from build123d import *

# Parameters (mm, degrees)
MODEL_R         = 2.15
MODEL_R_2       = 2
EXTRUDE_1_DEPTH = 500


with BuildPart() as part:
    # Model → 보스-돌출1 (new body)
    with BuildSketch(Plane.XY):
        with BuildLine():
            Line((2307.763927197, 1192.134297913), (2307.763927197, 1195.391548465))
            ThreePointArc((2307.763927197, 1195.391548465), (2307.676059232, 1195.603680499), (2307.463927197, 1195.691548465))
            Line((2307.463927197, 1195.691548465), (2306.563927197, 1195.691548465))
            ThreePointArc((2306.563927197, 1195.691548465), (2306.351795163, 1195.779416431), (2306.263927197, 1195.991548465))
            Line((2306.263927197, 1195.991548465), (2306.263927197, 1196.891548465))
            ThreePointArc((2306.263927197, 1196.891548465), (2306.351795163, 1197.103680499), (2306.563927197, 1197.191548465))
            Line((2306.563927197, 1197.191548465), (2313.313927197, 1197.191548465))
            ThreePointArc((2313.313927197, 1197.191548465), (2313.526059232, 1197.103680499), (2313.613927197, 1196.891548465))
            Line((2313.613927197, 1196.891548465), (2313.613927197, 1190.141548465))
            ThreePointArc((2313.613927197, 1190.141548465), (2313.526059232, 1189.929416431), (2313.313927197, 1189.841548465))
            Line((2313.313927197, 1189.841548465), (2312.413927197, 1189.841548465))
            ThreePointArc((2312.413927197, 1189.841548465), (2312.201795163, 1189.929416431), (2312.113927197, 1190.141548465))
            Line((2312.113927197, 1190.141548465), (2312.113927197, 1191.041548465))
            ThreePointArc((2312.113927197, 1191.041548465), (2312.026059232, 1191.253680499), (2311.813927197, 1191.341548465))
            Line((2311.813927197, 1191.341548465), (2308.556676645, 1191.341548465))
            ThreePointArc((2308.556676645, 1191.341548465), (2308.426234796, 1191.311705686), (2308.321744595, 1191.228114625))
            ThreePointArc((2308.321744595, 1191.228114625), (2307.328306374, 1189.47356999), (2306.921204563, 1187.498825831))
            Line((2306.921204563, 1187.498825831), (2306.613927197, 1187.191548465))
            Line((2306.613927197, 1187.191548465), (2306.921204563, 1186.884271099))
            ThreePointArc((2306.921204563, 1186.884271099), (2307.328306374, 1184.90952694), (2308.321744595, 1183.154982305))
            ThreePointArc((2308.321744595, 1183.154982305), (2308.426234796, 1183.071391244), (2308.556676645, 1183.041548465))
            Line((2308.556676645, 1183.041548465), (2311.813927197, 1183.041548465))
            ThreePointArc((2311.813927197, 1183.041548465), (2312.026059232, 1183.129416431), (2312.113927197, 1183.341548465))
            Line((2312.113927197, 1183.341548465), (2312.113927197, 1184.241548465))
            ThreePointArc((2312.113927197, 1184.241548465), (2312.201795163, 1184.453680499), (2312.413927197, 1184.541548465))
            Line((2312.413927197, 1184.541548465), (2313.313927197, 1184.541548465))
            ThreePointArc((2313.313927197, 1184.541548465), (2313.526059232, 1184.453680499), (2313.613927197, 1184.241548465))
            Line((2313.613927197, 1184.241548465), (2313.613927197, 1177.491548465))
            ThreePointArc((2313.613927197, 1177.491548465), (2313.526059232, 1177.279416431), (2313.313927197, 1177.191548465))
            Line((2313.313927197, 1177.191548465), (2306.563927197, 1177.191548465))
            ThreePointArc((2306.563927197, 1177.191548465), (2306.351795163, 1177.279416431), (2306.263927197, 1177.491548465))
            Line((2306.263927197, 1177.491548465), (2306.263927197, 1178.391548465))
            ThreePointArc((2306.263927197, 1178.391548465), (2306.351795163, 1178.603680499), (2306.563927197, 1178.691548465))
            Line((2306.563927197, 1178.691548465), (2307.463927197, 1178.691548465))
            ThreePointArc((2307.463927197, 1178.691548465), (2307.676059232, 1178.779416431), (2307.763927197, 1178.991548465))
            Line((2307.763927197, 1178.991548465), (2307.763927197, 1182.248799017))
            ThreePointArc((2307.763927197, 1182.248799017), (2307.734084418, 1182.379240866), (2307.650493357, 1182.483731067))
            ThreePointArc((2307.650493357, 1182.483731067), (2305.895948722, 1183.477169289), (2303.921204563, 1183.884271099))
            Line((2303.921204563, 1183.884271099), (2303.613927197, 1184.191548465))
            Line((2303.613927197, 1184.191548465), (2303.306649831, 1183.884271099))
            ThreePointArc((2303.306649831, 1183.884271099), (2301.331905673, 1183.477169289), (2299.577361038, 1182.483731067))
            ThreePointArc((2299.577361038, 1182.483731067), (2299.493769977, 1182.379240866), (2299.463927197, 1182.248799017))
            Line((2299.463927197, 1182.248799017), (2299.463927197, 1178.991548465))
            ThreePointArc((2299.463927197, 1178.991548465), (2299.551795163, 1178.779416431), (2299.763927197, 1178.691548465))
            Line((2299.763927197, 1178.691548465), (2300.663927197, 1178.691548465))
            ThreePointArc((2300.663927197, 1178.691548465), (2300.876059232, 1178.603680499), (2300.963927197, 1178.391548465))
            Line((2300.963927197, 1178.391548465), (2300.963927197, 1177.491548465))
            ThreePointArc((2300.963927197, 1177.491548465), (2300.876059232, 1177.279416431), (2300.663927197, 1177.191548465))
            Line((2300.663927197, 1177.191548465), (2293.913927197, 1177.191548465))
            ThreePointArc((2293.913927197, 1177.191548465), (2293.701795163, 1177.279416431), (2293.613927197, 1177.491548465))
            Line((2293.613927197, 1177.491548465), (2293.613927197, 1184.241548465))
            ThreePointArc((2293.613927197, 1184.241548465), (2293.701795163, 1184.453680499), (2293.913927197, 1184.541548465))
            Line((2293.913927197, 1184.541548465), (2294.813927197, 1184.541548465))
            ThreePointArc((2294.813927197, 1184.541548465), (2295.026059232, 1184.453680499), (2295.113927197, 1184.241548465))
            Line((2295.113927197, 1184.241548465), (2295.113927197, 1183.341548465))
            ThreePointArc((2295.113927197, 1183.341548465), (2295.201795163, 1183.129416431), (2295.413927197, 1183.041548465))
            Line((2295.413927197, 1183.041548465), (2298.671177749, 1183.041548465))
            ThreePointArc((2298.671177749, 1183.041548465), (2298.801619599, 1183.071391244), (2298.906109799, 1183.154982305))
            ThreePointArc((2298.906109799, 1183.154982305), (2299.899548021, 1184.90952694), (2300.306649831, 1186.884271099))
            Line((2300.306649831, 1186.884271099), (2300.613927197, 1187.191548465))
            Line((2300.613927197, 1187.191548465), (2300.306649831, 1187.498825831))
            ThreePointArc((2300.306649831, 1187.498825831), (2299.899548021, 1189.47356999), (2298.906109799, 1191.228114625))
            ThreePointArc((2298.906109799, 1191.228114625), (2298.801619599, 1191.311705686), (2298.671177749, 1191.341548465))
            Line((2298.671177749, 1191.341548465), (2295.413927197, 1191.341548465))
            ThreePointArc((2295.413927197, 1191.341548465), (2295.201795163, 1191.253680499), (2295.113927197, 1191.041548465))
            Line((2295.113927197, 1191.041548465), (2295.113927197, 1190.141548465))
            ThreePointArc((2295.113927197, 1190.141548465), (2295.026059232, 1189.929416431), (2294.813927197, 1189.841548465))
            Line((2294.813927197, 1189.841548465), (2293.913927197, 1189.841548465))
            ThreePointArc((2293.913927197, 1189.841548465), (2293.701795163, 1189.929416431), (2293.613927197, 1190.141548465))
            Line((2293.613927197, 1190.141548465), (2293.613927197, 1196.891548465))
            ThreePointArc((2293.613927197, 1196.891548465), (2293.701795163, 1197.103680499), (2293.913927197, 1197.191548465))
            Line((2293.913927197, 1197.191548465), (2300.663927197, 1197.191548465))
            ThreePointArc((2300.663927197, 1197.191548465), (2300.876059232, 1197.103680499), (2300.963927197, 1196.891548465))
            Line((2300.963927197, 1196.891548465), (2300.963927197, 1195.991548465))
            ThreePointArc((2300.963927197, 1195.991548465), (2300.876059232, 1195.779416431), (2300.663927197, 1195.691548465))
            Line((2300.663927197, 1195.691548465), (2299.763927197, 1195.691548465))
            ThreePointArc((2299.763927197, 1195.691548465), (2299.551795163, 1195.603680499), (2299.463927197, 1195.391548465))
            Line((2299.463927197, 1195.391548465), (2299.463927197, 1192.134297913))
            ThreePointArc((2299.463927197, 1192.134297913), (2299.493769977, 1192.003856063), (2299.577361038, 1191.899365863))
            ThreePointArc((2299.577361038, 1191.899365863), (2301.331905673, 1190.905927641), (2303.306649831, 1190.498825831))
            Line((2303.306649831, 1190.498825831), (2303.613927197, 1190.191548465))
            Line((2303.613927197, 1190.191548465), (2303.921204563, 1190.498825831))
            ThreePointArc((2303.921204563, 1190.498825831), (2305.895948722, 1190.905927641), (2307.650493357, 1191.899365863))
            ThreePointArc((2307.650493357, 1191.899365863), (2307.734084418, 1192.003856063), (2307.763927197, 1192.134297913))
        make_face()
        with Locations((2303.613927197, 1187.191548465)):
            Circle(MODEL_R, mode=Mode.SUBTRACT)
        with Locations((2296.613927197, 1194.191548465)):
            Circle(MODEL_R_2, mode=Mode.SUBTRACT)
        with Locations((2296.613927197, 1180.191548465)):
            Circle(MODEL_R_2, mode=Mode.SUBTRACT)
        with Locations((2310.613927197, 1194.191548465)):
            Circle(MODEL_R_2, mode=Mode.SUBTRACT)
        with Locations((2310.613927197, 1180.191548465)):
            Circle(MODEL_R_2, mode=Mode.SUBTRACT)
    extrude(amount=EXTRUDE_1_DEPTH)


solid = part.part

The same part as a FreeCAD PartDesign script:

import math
import FreeCAD as App
import Part
import Sketcher
from FreeCAD import Vector
Q = App.Units.Quantity

doc = App.newDocument("Part")
params = doc.addObject("Spreadsheet::Sheet", "Params")
for row, (alias, value) in enumerate([
    ("sketch1_diameter", "4 mm"),
    ("sketch1_diameter2", "4.3 mm"),
    ("sketch1_radius", "0.3 mm"),
    ("sketch1_width", "0.9 mm"),
    ("sketch1_width2", "6.75 mm"),
    ("pad1_length", "500 mm"),
], start=1):
    params.set(f"A{row}", alias)
    params.set(f"B{row}", "=" + value)
    params.setAlias(f"B{row}", alias)

body = doc.addObject("PartDesign::Body", "Body")

# Sketch on XY plane
sketch1 = body.newObject("Sketcher::SketchObject", "Sketch")
sketch1.AttachmentSupport = (doc.getObject("XY_Plane"), [""])
sketch1.MapMode = "FlatFace"
sketch1.addGeometry([
    Part.LineSegment(Vector(2307.76, 1195.39, 0), Vector(2307.76, 1192.13, 0)),  # 0
    Part.ArcOfCircle(Part.Circle(Vector(2307.46, 1192.13, 0), Vector(0, 0, 1), 0.3), math.radians(-52), math.radians(0)),  # 1
    Part.ArcOfCircle(Part.Circle(Vector(2303.61, 1196.98, 0), Vector(0, 0, 1), 6.49), math.radians(-87), math.radians(-52)),  # 2
    Part.LineSegment(Vector(2303.92, 1190.5, 0), Vector(2303.61, 1190.19, 0)),  # 3
    Part.LineSegment(Vector(2303.61, 1190.19, 0), Vector(2303.31, 1190.5, 0)),  # 4
    Part.ArcOfCircle(Part.Circle(Vector(2303.61, 1196.98, 0), Vector(0, 0, 1), 6.49), math.radians(-128), math.radians(-93)),  # 5
    Part.ArcOfCircle(Part.Circle(Vector(2299.76, 1192.13, 0), Vector(0, 0, 1), 0.3), math.radians(-180), math.radians(-128)),  # 6
    Part.LineSegment(Vector(2299.46, 1192.13, 0), Vector(2299.46, 1195.39, 0)),  # 7
    Part.ArcOfCircle(Part.Circle(Vector(2299.76, 1195.39, 0), Vector(0, 0, 1), 0.3), math.radians(90), math.radians(180)),  # 8
    Part.LineSegment(Vector(2299.76, 1195.69, 0), Vector(2300.66, 1195.69, 0)),  # 9
    Part.ArcOfCircle(Part.Circle(Vector(2300.66, 1195.99, 0), Vector(0, 0, 1), 0.3), math.radians(-90), math.radians(0)),  # 10
    Part.LineSegment(Vector(2300.96, 1195.99, 0), Vector(2300.96, 1196.89, 0)),  # 11
    Part.ArcOfCircle(Part.Circle(Vector(2300.66, 1196.89, 0), Vector(0, 0, 1), 0.3), math.radians(0), math.radians(90)),  # 12
    Part.LineSegment(Vector(2300.66, 1197.19, 0), Vector(2293.91, 1197.19, 0)),  # 13
    Part.ArcOfCircle(Part.Circle(Vector(2293.91, 1196.89, 0), Vector(0, 0, 1), 0.3), math.radians(90), math.radians(180)),  # 14
    Part.LineSegment(Vector(2293.61, 1196.89, 0), Vector(2293.61, 1190.14, 0)),  # 15
    Part.ArcOfCircle(Part.Circle(Vector(2293.91, 1190.14, 0), Vector(0, 0, 1), 0.3), math.radians(-180), math.radians(-90)),  # 16
    Part.LineSegment(Vector(2293.91, 1189.84, 0), Vector(2294.81, 1189.84, 0)),  # 17
    Part.ArcOfCircle(Part.Circle(Vector(2294.81, 1190.14, 0), Vector(0, 0, 1), 0.3), math.radians(-90), math.radians(0)),  # 18
    Part.LineSegment(Vector(2295.11, 1190.14, 0), Vector(2295.11, 1191.04, 0)),  # 19
    Part.ArcOfCircle(Part.Circle(Vector(2295.41, 1191.04, 0), Vector(0, 0, 1), 0.3), math.radians(90), math.radians(180)),  # 20
    Part.LineSegment(Vector(2295.41, 1191.34, 0), Vector(2298.67, 1191.34, 0)),  # 21
    Part.ArcOfCircle(Part.Circle(Vector(2298.67, 1191.04, 0), Vector(0, 0, 1), 0.3), math.radians(38), math.radians(90)),  # 22
    Part.ArcOfCircle(Part.Circle(Vector(2293.82, 1187.19, 0), Vector(0, 0, 1), 6.49), math.radians(3), math.radians(38)),  # 23
    Part.LineSegment(Vector(2300.31, 1187.5, 0), Vector(2300.61, 1187.19, 0)),  # 24
    Part.LineSegment(Vector(2300.61, 1187.19, 0), Vector(2300.31, 1186.88, 0)),  # 25
    Part.ArcOfCircle(Part.Circle(Vector(2293.82, 1187.19, 0), Vector(0, 0, 1), 6.49), math.radians(-38), math.radians(-3)),  # 26
    Part.ArcOfCircle(Part.Circle(Vector(2298.67, 1183.34, 0), Vector(0, 0, 1), 0.3), math.radians(-90), math.radians(-38)),  # 27
    Part.LineSegment(Vector(2298.67, 1183.04, 0), Vector(2295.41, 1183.04, 0)),  # 28
    Part.ArcOfCircle(Part.Circle(Vector(2295.41, 1183.34, 0), Vector(0, 0, 1), 0.3), math.radians(-180), math.radians(-90)),  # 29
    Part.LineSegment(Vector(2295.11, 1183.34, 0), Vector(2295.11, 1184.24, 0)),  # 30
    Part.ArcOfCircle(Part.Circle(Vector(2294.81, 1184.24, 0), Vector(0, 0, 1), 0.3), math.radians(0), math.radians(90)),  # 31
    Part.LineSegment(Vector(2294.81, 1184.54, 0), Vector(2293.91, 1184.54, 0)),  # 32
    Part.ArcOfCircle(Part.Circle(Vector(2293.91, 1184.24, 0), Vector(0, 0, 1), 0.3), math.radians(90), math.radians(180)),  # 33
    Part.LineSegment(Vector(2293.61, 1184.24, 0), Vector(2293.61, 1177.49, 0)),  # 34
    Part.ArcOfCircle(Part.Circle(Vector(2293.91, 1177.49, 0), Vector(0, 0, 1), 0.3), math.radians(-180), math.radians(-90)),  # 35
    Part.LineSegment(Vector(2293.91, 1177.19, 0), Vector(2300.66, 1177.19, 0)),  # 36
    Part.ArcOfCircle(Part.Circle(Vector(2300.66, 1177.49, 0), Vector(0, 0, 1), 0.3), math.radians(-90), math.radians(0)),  # 37
    Part.LineSegment(Vector(2300.96, 1177.49, 0), Vector(2300.96, 1178.39, 0)),  # 38
    Part.ArcOfCircle(Part.Circle(Vector(2300.66, 1178.39, 0), Vector(0, 0, 1), 0.3), math.radians(0), math.radians(90)),  # 39
    Part.LineSegment(Vector(2300.66, 1178.69, 0), Vector(2299.76, 1178.69, 0)),  # 40
    Part.ArcOfCircle(Part.Circle(Vector(2299.76, 1178.99, 0), Vector(0, 0, 1), 0.3), math.radians(-180), math.radians(-90)),  # 41
    Part.LineSegment(Vector(2299.46, 1178.99, 0), Vector(2299.46, 1182.25, 0)),  # 42
    Part.ArcOfCircle(Part.Circle(Vector(2299.76, 1182.25, 0), Vector(0, 0, 1), 0.3), math.radians(128), math.radians(180)),  # 43
    Part.ArcOfCircle(Part.Circle(Vector(2303.61, 1177.4, 0), Vector(0, 0, 1), 6.49), math.radians(93), math.radians(128)),  # 44
    Part.LineSegment(Vector(2303.31, 1183.88, 0), Vector(2303.61, 1184.19, 0)),  # 45
    Part.LineSegment(Vector(2303.61, 1184.19, 0), Vector(2303.92, 1183.88, 0)),  # 46
    Part.ArcOfCircle(Part.Circle(Vector(2303.61, 1177.4, 0), Vector(0, 0, 1), 6.49), math.radians(52), math.radians(87)),  # 47
    Part.ArcOfCircle(Part.Circle(Vector(2307.46, 1182.25, 0), Vector(0, 0, 1), 0.3), math.radians(0), math.radians(52)),  # 48
    Part.LineSegment(Vector(2307.76, 1182.25, 0), Vector(2307.76, 1178.99, 0)),  # 49
    Part.ArcOfCircle(Part.Circle(Vector(2307.46, 1178.99, 0), Vector(0, 0, 1), 0.3), math.radians(-90), math.radians(0)),  # 50
    Part.LineSegment(Vector(2307.46, 1178.69, 0), Vector(2306.56, 1178.69, 0)),  # 51
    Part.ArcOfCircle(Part.Circle(Vector(2306.56, 1178.39, 0), Vector(0, 0, 1), 0.3), math.radians(90), math.radians(180)),  # 52
    Part.LineSegment(Vector(2306.26, 1178.39, 0), Vector(2306.26, 1177.49, 0)),  # 53
    Part.ArcOfCircle(Part.Circle(Vector(2306.56, 1177.49, 0), Vector(0, 0, 1), 0.3), math.radians(-180), math.radians(-90)),  # 54
    Part.LineSegment(Vector(2306.56, 1177.19, 0), Vector(2313.31, 1177.19, 0)),  # 55
    Part.ArcOfCircle(Part.Circle(Vector(2313.31, 1177.49, 0), Vector(0, 0, 1), 0.3), math.radians(-90), math.radians(0)),  # 56
    Part.LineSegment(Vector(2313.61, 1177.49, 0), Vector(2313.61, 1184.24, 0)),  # 57
    Part.ArcOfCircle(Part.Circle(Vector(2313.31, 1184.24, 0), Vector(0, 0, 1), 0.3), math.radians(0), math.radians(90)),  # 58
    Part.LineSegment(Vector(2313.31, 1184.54, 0), Vector(2312.41, 1184.54, 0)),  # 59
    Part.ArcOfCircle(Part.Circle(Vector(2312.41, 1184.24, 0), Vector(0, 0, 1), 0.3), math.radians(90), math.radians(180)),  # 60
    Part.LineSegment(Vector(2312.11, 1184.24, 0), Vector(2312.11, 1183.34, 0)),  # 61
    Part.ArcOfCircle(Part.Circle(Vector(2311.81, 1183.34, 0), Vector(0, 0, 1), 0.3), math.radians(-90), math.radians(0)),  # 62
    Part.LineSegment(Vector(2311.81, 1183.04, 0), Vector(2308.56, 1183.04, 0)),  # 63
    Part.ArcOfCircle(Part.Circle(Vector(2308.56, 1183.34, 0), Vector(0, 0, 1), 0.3), math.radians(-142), math.radians(-90)),  # 64
    Part.ArcOfCircle(Part.Circle(Vector(2313.4, 1187.19, 0), Vector(0, 0, 1), 6.49), math.radians(-177), math.radians(-142)),  # 65
    Part.LineSegment(Vector(2306.92, 1186.88, 0), Vector(2306.61, 1187.19, 0)),  # 66
    Part.LineSegment(Vector(2306.61, 1187.19, 0), Vector(2306.92, 1187.5, 0)),  # 67
    Part.ArcOfCircle(Part.Circle(Vector(2313.4, 1187.19, 0), Vector(0, 0, 1), 6.49), math.radians(142), math.radians(177)),  # 68
    Part.ArcOfCircle(Part.Circle(Vector(2308.56, 1191.04, 0), Vector(0, 0, 1), 0.3), math.radians(90), math.radians(142)),  # 69
    Part.LineSegment(Vector(2308.56, 1191.34, 0), Vector(2311.81, 1191.34, 0)),  # 70
    Part.ArcOfCircle(Part.Circle(Vector(2311.81, 1191.04, 0), Vector(0, 0, 1), 0.3), math.radians(0), math.radians(90)),  # 71
    Part.LineSegment(Vector(2312.11, 1191.04, 0), Vector(2312.11, 1190.14, 0)),  # 72
    Part.ArcOfCircle(Part.Circle(Vector(2312.41, 1190.14, 0), Vector(0, 0, 1), 0.3), math.radians(-180), math.radians(-90)),  # 73
    Part.LineSegment(Vector(2312.41, 1189.84, 0), Vector(2313.31, 1189.84, 0)),  # 74
    Part.ArcOfCircle(Part.Circle(Vector(2313.31, 1190.14, 0), Vector(0, 0, 1), 0.3), math.radians(-90), math.radians(0)),  # 75
    Part.LineSegment(Vector(2313.61, 1190.14, 0), Vector(2313.61, 1196.89, 0)),  # 76
    Part.ArcOfCircle(Part.Circle(Vector(2313.31, 1196.89, 0), Vector(0, 0, 1), 0.3), math.radians(0), math.radians(90)),  # 77
    Part.LineSegment(Vector(2313.31, 1197.19, 0), Vector(2306.56, 1197.19, 0)),  # 78
    Part.ArcOfCircle(Part.Circle(Vector(2306.56, 1196.89, 0), Vector(0, 0, 1), 0.3), math.radians(90), math.radians(180)),  # 79
    Part.LineSegment(Vector(2306.26, 1196.89, 0), Vector(2306.26, 1195.99, 0)),  # 80
    Part.ArcOfCircle(Part.Circle(Vector(2306.56, 1195.99, 0), Vector(0, 0, 1), 0.3), math.radians(-180), math.radians(-90)),  # 81
    Part.LineSegment(Vector(2306.56, 1195.69, 0), Vector(2307.46, 1195.69, 0)),  # 82
    Part.ArcOfCircle(Part.Circle(Vector(2307.46, 1195.39, 0), Vector(0, 0, 1), 0.3), math.radians(0), math.radians(90)),  # 83
    Part.Circle(Vector(2310.61, 1180.19, 0), Vector(0, 0, 1), 2),  # 84
    Part.Circle(Vector(2296.61, 1180.19, 0), Vector(0, 0, 1), 2),  # 85
    Part.Circle(Vector(2310.61, 1194.19, 0), Vector(0, 0, 1), 2),  # 86
    Part.Circle(Vector(2303.61, 1187.19, 0), Vector(0, 0, 1), 2.15),  # 87
    Part.Circle(Vector(2296.61, 1194.19, 0), Vector(0, 0, 1), 2),  # 88
], False)
sketch1.addConstraint([
    Sketcher.Constraint("Tangent", 0, 2, 1, 2),
    Sketcher.Constraint("Tangent", 1, 1, 2, 2),
    Sketcher.Constraint("Coincident", 2, 1, 3, 1),
    Sketcher.Constraint("Coincident", 3, 2, 4, 1),
    Sketcher.Constraint("Coincident", 4, 2, 5, 2),
    Sketcher.Constraint("Tangent", 5, 1, 6, 2),
    Sketcher.Constraint("Tangent", 6, 1, 7, 1),
    Sketcher.Constraint("Tangent", 7, 2, 8, 2),
    Sketcher.Constraint("Tangent", 8, 1, 9, 1),
    Sketcher.Constraint("Tangent", 9, 2, 10, 1),
    Sketcher.Constraint("Tangent", 10, 2, 11, 1),
    Sketcher.Constraint("Tangent", 11, 2, 12, 1),
    Sketcher.Constraint("Tangent", 12, 2, 13, 1),
    Sketcher.Constraint("Tangent", 13, 2, 14, 1),
    Sketcher.Constraint("Tangent", 14, 2, 15, 1),
    Sketcher.Constraint("Tangent", 15, 2, 16, 1),
    Sketcher.Constraint("Tangent", 16, 2, 17, 1),
    Sketcher.Constraint("Tangent", 17, 2, 18, 1),
    Sketcher.Constraint("Tangent", 18, 2, 19, 1),
    Sketcher.Constraint("Tangent", 19, 2, 20, 2),
    Sketcher.Constraint("Tangent", 20, 1, 21, 1),
    Sketcher.Constraint("Tangent", 21, 2, 22, 2),
    Sketcher.Constraint("Tangent", 22, 1, 23, 2),
    Sketcher.Constraint("Coincident", 23, 1, 24, 1),
    Sketcher.Constraint("Coincident", 24, 2, 25, 1),
    Sketcher.Constraint("Coincident", 25, 2, 26, 2),
    Sketcher.Constraint("Tangent", 26, 1, 27, 2),
    Sketcher.Constraint("Tangent", 27, 1, 28, 1),
    Sketcher.Constraint("Tangent", 28, 2, 29, 2),
    Sketcher.Constraint("Tangent", 29, 1, 30, 1),
    Sketcher.Constraint("Tangent", 30, 2, 31, 1),
    Sketcher.Constraint("Tangent", 31, 2, 32, 1),
    Sketcher.Constraint("Tangent", 32, 2, 33, 1),
    Sketcher.Constraint("Tangent", 33, 2, 34, 1),
    Sketcher.Constraint("Tangent", 34, 2, 35, 1),
    Sketcher.Constraint("Tangent", 35, 2, 36, 1),
    Sketcher.Constraint("Tangent", 36, 2, 37, 1),
    Sketcher.Constraint("Tangent", 37, 2, 38, 1),
    Sketcher.Constraint("Tangent", 38, 2, 39, 1),
    Sketcher.Constraint("Tangent", 39, 2, 40, 1),
    Sketcher.Constraint("Tangent", 40, 2, 41, 2),
    Sketcher.Constraint("Tangent", 41, 1, 42, 1),
    Sketcher.Constraint("Tangent", 42, 2, 43, 2),
    Sketcher.Constraint("Tangent", 43, 1, 44, 2),
    Sketcher.Constraint("Coincident", 44, 1, 45, 1),
    Sketcher.Constraint("Coincident", 45, 2, 46, 1),
    Sketcher.Constraint("Coincident", 46, 2, 47, 2),
    Sketcher.Constraint("Tangent", 47, 1, 48, 2),
    Sketcher.Constraint("Tangent", 48, 1, 49, 1),
    Sketcher.Constraint("Tangent", 49, 2, 50, 2),
    Sketcher.Constraint("Tangent", 50, 1, 51, 1),
    Sketcher.Constraint("Tangent", 51, 2, 52, 1),
    Sketcher.Constraint("Tangent", 52, 2, 53, 1),
    Sketcher.Constraint("Tangent", 53, 2, 54, 1),
    Sketcher.Constraint("Tangent", 54, 2, 55, 1),
    Sketcher.Constraint("Tangent", 55, 2, 56, 1),
    Sketcher.Constraint("Tangent", 56, 2, 57, 1),
    Sketcher.Constraint("Tangent", 57, 2, 58, 1),
    Sketcher.Constraint("Tangent", 58, 2, 59, 1),
    Sketcher.Constraint("Tangent", 59, 2, 60, 1),
    Sketcher.Constraint("Tangent", 60, 2, 61, 1),
    Sketcher.Constraint("Tangent", 61, 2, 62, 2),
    Sketcher.Constraint("Tangent", 62, 1, 63, 1),
    Sketcher.Constraint("Tangent", 63, 2, 64, 2),
    Sketcher.Constraint("Tangent", 64, 1, 65, 2),
    Sketcher.Constraint("Coincident", 65, 1, 66, 1),
    Sketcher.Constraint("Coincident", 66, 2, 67, 1),
    Sketcher.Constraint("Coincident", 67, 2, 68, 2),
    Sketcher.Constraint("Tangent", 68, 1, 69, 2),
    Sketcher.Constraint("Tangent", 69, 1, 70, 1),
    Sketcher.Constraint("Tangent", 70, 2, 71, 2),
    Sketcher.Constraint("Tangent", 71, 1, 72, 1),
    Sketcher.Constraint("Tangent", 72, 2, 73, 1),
    Sketcher.Constraint("Tangent", 73, 2, 74, 1),
    Sketcher.Constraint("Tangent", 74, 2, 75, 1),
    Sketcher.Constraint("Tangent", 75, 2, 76, 1),
    Sketcher.Constraint("Tangent", 76, 2, 77, 1),
    Sketcher.Constraint("Tangent", 77, 2, 78, 1),
    Sketcher.Constraint("Tangent", 78, 2, 79, 1),
    Sketcher.Constraint("Tangent", 79, 2, 80, 1),
    Sketcher.Constraint("Tangent", 80, 2, 81, 1),
    Sketcher.Constraint("Tangent", 81, 2, 82, 1),
    Sketcher.Constraint("Tangent", 82, 2, 83, 2),
    Sketcher.Constraint("Tangent", 83, 1, 0, 1),
    Sketcher.Constraint("Vertical", 0),
    Sketcher.Constraint("Vertical", 7),
    Sketcher.Constraint("Horizontal", 9),
    Sketcher.Constraint("Vertical", 11),
    Sketcher.Constraint("Horizontal", 13),
    Sketcher.Constraint("Vertical", 15),
    Sketcher.Constraint("Horizontal", 17),
    Sketcher.Constraint("Vertical", 19),
    Sketcher.Constraint("Horizontal", 21),
    Sketcher.Constraint("Horizontal", 28),
    Sketcher.Constraint("Vertical", 30),
    Sketcher.Constraint("Horizontal", 32),
    Sketcher.Constraint("Vertical", 34),
    Sketcher.Constraint("Horizontal", 36),
    Sketcher.Constraint("Vertical", 38),
    Sketcher.Constraint("Horizontal", 40),
    Sketcher.Constraint("Vertical", 42),
    Sketcher.Constraint("Vertical", 49),
    Sketcher.Constraint("Horizontal", 51),
    Sketcher.Constraint("Vertical", 53),
    Sketcher.Constraint("Horizontal", 55),
    Sketcher.Constraint("Vertical", 57),
    Sketcher.Constraint("Horizontal", 59),
    Sketcher.Constraint("Vertical", 61),
    Sketcher.Constraint("Horizontal", 63),
    Sketcher.Constraint("Horizontal", 70),
    Sketcher.Constraint("Vertical", 72),
    Sketcher.Constraint("Horizontal", 74),
    Sketcher.Constraint("Vertical", 76),
    Sketcher.Constraint("Horizontal", 78),
    Sketcher.Constraint("Vertical", 80),
    Sketcher.Constraint("Horizontal", 82),
    Sketcher.Constraint("Coincident", 5, 3, 2, 3),
    Sketcher.Constraint("Coincident", 26, 3, 23, 3),
    Sketcher.Constraint("Coincident", 47, 3, 44, 3),
    Sketcher.Constraint("Coincident", 68, 3, 65, 3),
    Sketcher.Constraint("Equal", 2, 5),
    Sketcher.Constraint("Equal", 1, 6),
    Sketcher.Constraint("Equal", 6, 8),
    Sketcher.Constraint("Equal", 8, 10),
    Sketcher.Constraint("Equal", 10, 12),
    Sketcher.Constraint("Equal", 12, 14),
    Sketcher.Constraint("Equal", 14, 16),
    Sketcher.Constraint("Equal", 16, 18),
    Sketcher.Constraint("Equal", 18, 20),
    Sketcher.Constraint("Equal", 20, 22),
    Sketcher.Constraint("Equal", 5, 23),
    Sketcher.Constraint("Equal", 23, 26),
    Sketcher.Constraint("Equal", 22, 27),
    Sketcher.Constraint("Equal", 27, 29),
    Sketcher.Constraint("Equal", 29, 31),
    Sketcher.Constraint("Equal", 31, 33),
    Sketcher.Constraint("Equal", 33, 35),
    Sketcher.Constraint("Equal", 35, 37),
    Sketcher.Constraint("Equal", 37, 39),
    Sketcher.Constraint("Equal", 39, 41),
    Sketcher.Constraint("Equal", 41, 43),
    Sketcher.Constraint("Equal", 26, 44),
    Sketcher.Constraint("Equal", 44, 47),
    Sketcher.Constraint("Equal", 43, 48),
    Sketcher.Constraint("Equal", 48, 50),
    Sketcher.Constraint("Equal", 50, 52),
    Sketcher.Constraint("Equal", 52, 54),
    Sketcher.Constraint("Equal", 54, 56),
    Sketcher.Constraint("Equal", 56, 58),
    Sketcher.Constraint("Equal", 58, 60),
    Sketcher.Constraint("Equal", 60, 62),
    Sketcher.Constraint("Equal", 62, 64),
    Sketcher.Constraint("Equal", 47, 65),
    Sketcher.Constraint("Equal", 65, 68),
    Sketcher.Constraint("Equal", 64, 69),
    Sketcher.Constraint("Equal", 69, 71),
    Sketcher.Constraint("Equal", 71, 73),
    Sketcher.Constraint("Equal", 73, 75),
    Sketcher.Constraint("Equal", 75, 77),
    Sketcher.Constraint("Equal", 77, 79),
    Sketcher.Constraint("Equal", 79, 81),
    Sketcher.Constraint("Equal", 81, 83),
    Sketcher.Constraint("Equal", 84, 85),
    Sketcher.Constraint("Equal", 85, 86),
    Sketcher.Constraint("Equal", 86, 88),
    Sketcher.Constraint("Perpendicular", 3, 4),
    Sketcher.Constraint("Parallel", 4, 24),
    Sketcher.Constraint("Perpendicular", 24, 25),
    Sketcher.Constraint("Parallel", 25, 45),
    Sketcher.Constraint("Perpendicular", 45, 46),
    Sketcher.Constraint("Parallel", 46, 66),
    Sketcher.Constraint("Perpendicular", 66, 67),
    Sketcher.Constraint("Horizontal", 1, 3, 6, 3),
    Sketcher.Constraint("Horizontal", 43, 3, 48, 3),
    Sketcher.Constraint("Horizontal", 41, 3, 50, 3),
    Sketcher.Constraint("Horizontal", 37, 3, 54, 3),
    Sketcher.Constraint("Horizontal", 33, 3, 58, 3),
    Sketcher.Constraint("Horizontal", 29, 3, 62, 3),
    Sketcher.Constraint("Horizontal", 26, 3, 65, 3),
    Sketcher.Constraint("Horizontal", 22, 3, 69, 3),
    Sketcher.Constraint("Horizontal", 18, 3, 73, 3),
    Sketcher.Constraint("Horizontal", 14, 3, 77, 3),
    Sketcher.Constraint("Horizontal", 10, 3, 81, 3),
    Sketcher.Constraint("Horizontal", 84, 3, 85, 3),
    Sketcher.Constraint("Horizontal", 68, 3, 87, 3),
    Sketcher.Constraint("Horizontal", 86, 3, 88, 3),
    Sketcher.Constraint("Horizontal", 2, 1, 4, 2),
    Sketcher.Constraint("Horizontal", 87, 3, 24, 2),
    Sketcher.Constraint("Horizontal", 44, 1, 46, 2),
    Sketcher.Constraint("Horizontal", 25, 2, 65, 1),
    Sketcher.Constraint("Horizontal", 24, 2, 66, 2),
    Sketcher.Constraint("Horizontal", 23, 1, 67, 2),
    Sketcher.Constraint("Vertical", 22, 3, 27, 3),
    Sketcher.Constraint("Vertical", 20, 3, 29, 3),
    Sketcher.Constraint("Vertical", 16, 3, 33, 3),
    Sketcher.Constraint("Vertical", 12, 3, 37, 3),
    Sketcher.Constraint("Vertical", 8, 3, 41, 3),
    Sketcher.Constraint("Vertical", 5, 3, 44, 3),
    Sketcher.Constraint("Vertical", 62, 3, 71, 3),
    Sketcher.Constraint("Vertical", 58, 3, 75, 3),
    Sketcher.Constraint("Vertical", 54, 3, 79, 3),
    Sketcher.Constraint("Vertical", 84, 3, 86, 3),
    Sketcher.Constraint("Vertical", 47, 3, 87, 3),
    Sketcher.Constraint("Vertical", 85, 3, 88, 3),
    Sketcher.Constraint("Vertical", 4, 2, 44, 1),
    Sketcher.Constraint("Equal", 9, 17),
    Sketcher.Constraint("Equal", 40, 51),
    Sketcher.Constraint("Equal", 36, 55),
    Sketcher.Constraint("Equal", 51, 59),
    Sketcher.Constraint("Equal", 28, 63),
    Sketcher.Constraint("Equal", 70, 0),
    Sketcher.Constraint("Equal", 82, 11),
    Sketcher.Constraint("Equal", 78, 15),
    Sketcher.Constraint("Equal", 11, 19),
    Sketcher.Constraint("Equal", 19, 30),
    Sketcher.Constraint("Equal", 15, 34),
    Sketcher.Constraint("Equal", 30, 38),
    Sketcher.Constraint("Equal", 7, 42),
    Sketcher.Constraint("Equal", 4, 24),
    Sketcher.Constraint("Diameter", 84, Q("4 mm")),
    Sketcher.Constraint("Diameter", 87, Q("4.3 mm")),
    Sketcher.Constraint("Radius", 1, Q("0.3 mm")),
    Sketcher.Constraint("DistanceX", 9, 1, 9, 2, Q("0.9 mm")),
    Sketcher.Constraint("DistanceX", 13, 2, 13, 1, Q("6.75 mm")),
    Sketcher.Constraint("Radius", 2, Q("6.490833 mm")),
    Sketcher.Constraint("DistanceX", 21, 1, 21, 2, Q("3.257251 mm")),
    Sketcher.Constraint("DistanceY", -1, 1, 43, 3, Q("1182.248799 mm")),
    Sketcher.Constraint("DistanceY", -1, 1, 2, 3, Q("1196.982382 mm")),
    Sketcher.Constraint("DistanceY", -1, 1, 8, 3, Q("1195.391548 mm")),
    Sketcher.Constraint("DistanceX", -1, 1, 65, 3, Q("2313.404761 mm")),
    Sketcher.Constraint("DistanceY", -1, 1, 84, 3, Q("1180.191548 mm")),
    Sketcher.Constraint("DistanceY", -1, 1, 86, 3, Q("1194.191548 mm")),
    Sketcher.Constraint("DistanceY", -1, 1, 3, 2, Q("1190.191548 mm")),
    Sketcher.Constraint("DistanceX", -1, 1, 84, 3, Q("2310.613927 mm")),
    Sketcher.Constraint("DistanceX", -1, 1, 85, 3, Q("2296.613927 mm")),
])
sketch1.setExpression("Constraints[219]", "Params.sketch1_diameter")
sketch1.setExpression("Constraints[220]", "Params.sketch1_diameter2")
sketch1.setExpression("Constraints[221]", "Params.sketch1_radius")
sketch1.setExpression("Constraints[222]", "Params.sketch1_width")
sketch1.setExpression("Constraints[223]", "Params.sketch1_width2")
pad1 = body.newObject("PartDesign::Pad", "Pad")
pad1.Profile = sketch1
pad1.setExpression("Length", "Params.pad1_length")

doc.recompute()
